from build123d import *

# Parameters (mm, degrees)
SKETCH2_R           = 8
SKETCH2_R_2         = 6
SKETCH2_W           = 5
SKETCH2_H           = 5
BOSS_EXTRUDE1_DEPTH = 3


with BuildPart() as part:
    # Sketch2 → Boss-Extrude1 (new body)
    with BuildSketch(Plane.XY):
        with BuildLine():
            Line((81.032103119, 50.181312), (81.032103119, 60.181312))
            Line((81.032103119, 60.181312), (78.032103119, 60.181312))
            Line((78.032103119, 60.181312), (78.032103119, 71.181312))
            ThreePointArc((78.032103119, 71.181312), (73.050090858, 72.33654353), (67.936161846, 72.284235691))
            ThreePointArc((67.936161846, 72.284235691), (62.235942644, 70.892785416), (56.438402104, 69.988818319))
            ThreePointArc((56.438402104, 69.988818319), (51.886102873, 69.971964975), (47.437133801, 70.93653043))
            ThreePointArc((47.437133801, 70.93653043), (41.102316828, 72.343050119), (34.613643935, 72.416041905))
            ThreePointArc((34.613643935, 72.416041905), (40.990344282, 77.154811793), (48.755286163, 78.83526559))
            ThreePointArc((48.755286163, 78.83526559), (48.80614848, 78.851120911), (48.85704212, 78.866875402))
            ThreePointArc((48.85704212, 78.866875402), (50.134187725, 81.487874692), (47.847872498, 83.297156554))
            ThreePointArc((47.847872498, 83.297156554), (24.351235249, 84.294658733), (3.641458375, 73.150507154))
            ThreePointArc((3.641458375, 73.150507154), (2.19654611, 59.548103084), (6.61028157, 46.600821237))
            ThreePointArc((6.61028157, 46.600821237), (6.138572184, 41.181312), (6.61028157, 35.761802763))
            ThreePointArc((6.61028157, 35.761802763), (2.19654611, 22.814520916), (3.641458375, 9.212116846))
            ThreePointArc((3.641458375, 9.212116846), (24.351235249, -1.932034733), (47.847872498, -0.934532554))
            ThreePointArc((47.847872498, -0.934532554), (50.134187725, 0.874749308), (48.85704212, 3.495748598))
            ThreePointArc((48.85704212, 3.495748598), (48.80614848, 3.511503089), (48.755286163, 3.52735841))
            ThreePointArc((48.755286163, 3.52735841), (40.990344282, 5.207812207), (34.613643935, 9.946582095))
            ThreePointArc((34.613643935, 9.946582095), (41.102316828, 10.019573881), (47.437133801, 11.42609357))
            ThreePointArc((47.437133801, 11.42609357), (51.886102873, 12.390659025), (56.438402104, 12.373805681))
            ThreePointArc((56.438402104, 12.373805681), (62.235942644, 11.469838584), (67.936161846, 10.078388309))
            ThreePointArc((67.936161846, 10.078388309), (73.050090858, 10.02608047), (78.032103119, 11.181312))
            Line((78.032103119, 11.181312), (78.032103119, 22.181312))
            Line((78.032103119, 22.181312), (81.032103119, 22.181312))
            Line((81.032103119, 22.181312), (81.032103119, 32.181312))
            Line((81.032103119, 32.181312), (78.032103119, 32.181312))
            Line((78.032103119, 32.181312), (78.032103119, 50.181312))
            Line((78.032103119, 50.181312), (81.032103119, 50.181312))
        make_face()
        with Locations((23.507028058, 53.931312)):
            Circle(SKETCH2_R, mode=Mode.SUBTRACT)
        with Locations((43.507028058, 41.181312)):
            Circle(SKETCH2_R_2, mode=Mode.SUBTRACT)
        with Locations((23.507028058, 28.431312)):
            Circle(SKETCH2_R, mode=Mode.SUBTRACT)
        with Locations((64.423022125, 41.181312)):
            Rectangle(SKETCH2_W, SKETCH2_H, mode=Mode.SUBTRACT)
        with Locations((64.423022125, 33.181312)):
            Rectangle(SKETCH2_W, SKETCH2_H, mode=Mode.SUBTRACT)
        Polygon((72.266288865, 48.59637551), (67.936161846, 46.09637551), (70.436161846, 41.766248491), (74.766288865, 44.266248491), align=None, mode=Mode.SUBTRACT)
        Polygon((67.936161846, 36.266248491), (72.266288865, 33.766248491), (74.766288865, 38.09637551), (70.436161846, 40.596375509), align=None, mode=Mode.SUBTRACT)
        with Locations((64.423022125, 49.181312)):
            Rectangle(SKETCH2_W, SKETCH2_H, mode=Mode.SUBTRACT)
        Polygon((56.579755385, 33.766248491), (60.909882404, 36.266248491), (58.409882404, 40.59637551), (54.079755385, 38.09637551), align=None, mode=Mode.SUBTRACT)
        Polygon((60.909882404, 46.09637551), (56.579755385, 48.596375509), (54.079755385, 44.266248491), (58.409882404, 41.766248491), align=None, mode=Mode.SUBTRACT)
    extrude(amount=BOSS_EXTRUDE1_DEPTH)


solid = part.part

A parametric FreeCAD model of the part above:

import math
import FreeCAD as App
import Part
import Sketcher
Q = App.Units.Quantity


def add_polygon(sketch, points):
    """Adds a closed chain of lines whose ends are joined by coincident constraints."""
    first, n = sketch.GeometryCount, len(points)
    for a, b in zip(points, points[1:] + points[:1]):
        sketch.addGeometry(Part.LineSegment(App.Vector(*a, 0), App.Vector(*b, 0)), False)
    for i in range(n):
        sketch.addConstraint(Sketcher.Constraint("Coincident", first + i, 2, first + (i + 1) % n, 1))

doc = App.newDocument("Part")
body = doc.addObject("PartDesign::Body", "Body")

sketch1 = doc.addObject("Sketcher::SketchObject", "Sketch")
body.addObject(sketch1)
sketch1.AttachmentSupport = (doc.XY_Plane, [""])
sketch1.MapMode = "FlatFace"
sketch1.addGeometry(Part.LineSegment(App.Vector(81.03, 50.18, 0), App.Vector(81.03, 60.18, 0)), False)
sketch1.addGeometry(Part.LineSegment(App.Vector(81.03, 60.18, 0), App.Vector(78.03, 60.18, 0)), False)
sketch1.addGeometry(Part.LineSegment(App.Vector(78.03, 60.18, 0), App.Vector(78.03, 71.18, 0)), False)
sketch1.addGeometry(Part.ArcOfCircle(Part.Circle(App.Vector(70.71, 50.93, 0), App.Vector(0, 0, 1), 21.53), math.radians(70), math.radians(97)), False)
sketch1.addGeometry(Part.ArcOfCircle(Part.Circle(App.Vector(48.68, 138.81, 0), App.Vector(0, 0, 1), 69.26), math.radians(-83.57), math.radians(-73.85)), False)
sketch1.addGeometry(Part.ArcOfCircle(Part.Circle(App.Vector(54.08, 90.86, 0), App.Vector(0, 0, 1), 21), math.radians(-108), math.radians(-84)), False)
sketch1.addGeometry(Part.ArcOfCircle(Part.Circle(App.Vector(37.51, 41.18, 0), App.Vector(0, 0, 1), 31.37), math.radians(72), math.radians(95)), False)
sketch1.addGeometry(Part.ArcOfCircle(Part.Circle(App.Vector(48.76, 60.04, 0), App.Vector(0, 0, 1), 18.79), math.radians(90), math.radians(139)), False)
sketch1.addGeometry(Part.ArcOfCircle(Part.Circle(App.Vector(56.78, 53.18, 0), App.Vector(0, 0, 1), 26.88), math.radians(107.14), math.radians(107.37)), False)
sketch1.addGeometry(Part.ArcOfCircle(Part.Circle(App.Vector(47.87, 80.97, 0), App.Vector(0, 0, 1), 2.33), math.radians(-65), math.radians(90)), False)
sketch1.addGeometry(Part.ArcOfCircle(Part.Circle(App.Vector(34.28, 41.02, 0), App.Vector(0, 0, 1), 44.4), math.radians(72), math.radians(134)), False)
sketch1.addGeometry(Part.ArcOfCircle(Part.Circle(App.Vector(33.74, 63.08, 0), App.Vector(0, 0, 1), 31.74), math.radians(161), math.radians(211)), False)
sketch1.addGeometry(Part.ArcOfCircle(Part.Circle(App.Vector(37.51, 41.18, 0), App.Vector(0, 0, 1), 31.37), math.radians(170.05), math.radians(189.95)), False)
sketch1.addGeometry(Part.ArcOfCircle(Part.Circle(App.Vector(33.74, 19.29, 0), App.Vector(0, 0, 1), 31.74), math.radians(149), math.radians(199)), False)
sketch1.addGeometry(Part.ArcOfCircle(Part.Circle(App.Vector(34.28, 41.34, 0), App.Vector(0, 0, 1), 44.4), math.radians(-134), math.radians(-72)), False)
sketch1.addGeometry(Part.ArcOfCircle(Part.Circle(App.Vector(47.87, 1.39, 0), App.Vector(0, 0, 1), 2.33), math.radians(-90), math.radians(65)), False)
sketch1.addGeometry(Part.ArcOfCircle(Part.Circle(App.Vector(56.78, 29.18, 0), App.Vector(0, 0, 1), 26.88), math.radians(-107.37), math.radians(-107.14)), False)
sketch1.addGeometry(Part.ArcOfCircle(Part.Circle(App.Vector(48.76, 22.32, 0), App.Vector(0, 0, 1), 18.79), math.radians(-139), math.radians(-90)), False)
sketch1.addGeometry(Part.ArcOfCircle(Part.Circle(App.Vector(37.51, 41.18, 0), App.Vector(0, 0, 1), 31.37), math.radians(-95), math.radians(-72)), False)
sketch1.addGeometry(Part.ArcOfCircle(Part.Circle(App.Vector(54.08, -8.49, 0), App.Vector(0, 0, 1), 21), math.radians(84), math.radians(108)), False)
sketch1.addGeometry(Part.ArcOfCircle(Part.Circle(App.Vector(48.68, -56.45, 0), App.Vector(0, 0, 1), 69.26), math.radians(73.85), math.radians(83.57)), False)
sketch1.addGeometry(Part.ArcOfCircle(Part.Circle(App.Vector(70.71, 31.43, 0), App.Vector(0, 0, 1), 21.53), math.radians(-97), math.radians(-70)), False)
sketch1.addGeometry(Part.LineSegment(App.Vector(78.03, 11.18, 0), App.Vector(78.03, 22.18, 0)), False)
sketch1.addGeometry(Part.LineSegment(App.Vector(78.03, 22.18, 0), App.Vector(81.03, 22.18, 0)), False)
sketch1.addGeometry(Part.LineSegment(App.Vector(81.03, 22.18, 0), App.Vector(81.03, 32.18, 0)), False)
sketch1.addGeometry(Part.LineSegment(App.Vector(81.03, 32.18, 0), App.Vector(78.03, 32.18, 0)), False)
sketch1.addGeometry(Part.LineSegment(App.Vector(78.03, 32.18, 0), App.Vector(78.03, 50.18, 0)), False)
sketch1.addGeometry(Part.LineSegment(App.Vector(78.03, 50.18, 0), App.Vector(81.03, 50.18, 0)), False)
sketch1.addGeometry(Part.Circle(App.Vector(23.51, 28.43, 0), App.Vector(0, 0, 1), 8), False)
add_polygon(sketch1, [(60.91, 36.27), (56.58, 33.77), (54.08, 38.1), (58.41, 40.6)])
add_polygon(sketch1, [(66.92, 30.68), (61.92, 30.68), (61.92, 35.68), (66.92, 35.68)])
add_polygon(sketch1, [(72.27, 33.77), (67.94, 36.27), (70.44, 40.6), (74.77, 38.1)])
sketch1.addGeometry(Part.Circle(App.Vector(43.51, 41.18, 0), App.Vector(0, 0, 1), 6), False)
sketch1.addGeometry(Part.Circle(App.Vector(23.51, 53.93, 0), App.Vector(0, 0, 1), 8), False)
add_polygon(sketch1, [(56.58, 48.6), (60.91, 46.1), (58.41, 41.77), (54.08, 44.27)])
add_polygon(sketch1, [(66.92, 38.68), (61.92, 38.68), (61.92, 43.68), (66.92, 43.68)])
add_polygon(sketch1, [(67.94, 46.1), (72.27, 48.6), (74.77, 44.27), (70.44, 41.77)])
add_polygon(sketch1, [(66.92, 46.68), (61.92, 46.68), (61.92, 51.68), (66.92, 51.68)])
sketch1.addConstraint([
    Sketcher.Constraint("Coincident", 0, 2, 1, 1),
    Sketcher.Constraint("Coincident", 1, 2, 2, 1),
    Sketcher.Constraint("Coincident", 2, 2, 3, 1),
    Sketcher.Constraint("Coincident", 3, 2, 4, 2),
    Sketcher.Constraint("Tangent", 4, 1, 5, 2),
    Sketcher.Constraint("Tangent", 5, 1, 6, 1),
    Sketcher.Constraint("Coincident", 6, 2, 7, 2),
    Sketcher.Constraint("Coincident", 7, 1, 8, 2),
    Sketcher.Constraint("Coincident", 8, 1, 9, 1),
    Sketcher.Constraint("Coincident", 9, 2, 10, 1),
    Sketcher.Constraint("Coincident", 10, 2, 11, 1),
    Sketcher.Constraint("Coincident", 11, 2, 12, 1),
    Sketcher.Constraint("Coincident", 12, 2, 13, 1),
    Sketcher.Constraint("Coincident", 13, 2, 14, 1),
    Sketcher.Constraint("Coincident", 14, 2, 15, 1),
    Sketcher.Constraint("Coincident", 15, 2, 16, 2),
    Sketcher.Constraint("Coincident", 16, 1, 17, 2),
    Sketcher.Constraint("Coincident", 17, 1, 18, 1),
    Sketcher.Constraint("Tangent", 18, 2, 19, 2),
    Sketcher.Constraint("Tangent", 19, 1, 20, 2),
    Sketcher.Constraint("Coincident", 20, 1, 21, 1),
    Sketcher.Constraint("Coincident", 21, 2, 22, 1),
    Sketcher.Constraint("Coincident", 22, 2, 23, 1),
    Sketcher.Constraint("Coincident", 23, 2, 24, 1),
    Sketcher.Constraint("Coincident", 24, 2, 25, 1),
    Sketcher.Constraint("Coincident", 25, 2, 26, 1),
    Sketcher.Constraint("Coincident", 26, 2, 27, 1),
    Sketcher.Constraint("Coincident", 27, 2, 0, 1),
    Sketcher.Constraint("Vertical", 0),
    Sketcher.Constraint("Horizontal", 1),
    Sketcher.Constraint("Vertical", 2),
    Sketcher.Constraint("Vertical", 22),
    Sketcher.Constraint("Horizontal", 23),
    Sketcher.Constraint("Vertical", 24),
    Sketcher.Constraint("Horizontal", 25),
    Sketcher.Constraint("Vertical", 26),
    Sketcher.Constraint("Horizontal", 27),
    Sketcher.Constraint("Horizontal", 33),
    Sketcher.Constraint("Vertical", 34),
    Sketcher.Constraint("Horizontal", 35),
    Sketcher.Constraint("Vertical", 36),
    Sketcher.Constraint("Horizontal", 47),
    Sketcher.Constraint("Vertical", 48),
    Sketcher.Constraint("Horizontal", 49),
    Sketcher.Constraint("Vertical", 50),
    Sketcher.Constraint("Horizontal", 55),
    Sketcher.Constraint("Vertical", 56),
    Sketcher.Constraint("Horizontal", 57),
    Sketcher.Constraint("Vertical", 58),
    Sketcher.Constraint("Coincident", 12, 3, 6, 3),
    Sketcher.Constraint("Coincident", 18, 3, 6, 3),
    Sketcher.Constraint("Equal", 6, 12),
    Sketcher.Constraint("Equal", 11, 13),
    Sketcher.Constraint("Equal", 10, 14),
    Sketcher.Constraint("Equal", 9, 15),
    Sketcher.Constraint("Equal", 8, 16),
    Sketcher.Constraint("Equal", 7, 17),
    Sketcher.Constraint("Equal", 12, 18),
    Sketcher.Constraint("Equal", 5, 19),
    Sketcher.Constraint("Equal", 4, 20),
    Sketcher.Constraint("Equal", 3, 21),
    Sketcher.Constraint("Equal", 28, 42),
    Sketcher.Constraint("Perpendicular", 29, 30),
    Sketcher.Constraint("Perpendicular", 30, 31),
    Sketcher.Constraint("Perpendicular", 31, 32),
    Sketcher.Constraint("Perpendicular", 37, 38),
    Sketcher.Constraint("Perpendicular", 38, 39),
    Sketcher.Constraint("Perpendicular", 39, 40),
    Sketcher.Constraint("Perpendicular", 40, 43),
    Sketcher.Constraint("Perpendicular", 43, 44),
    Sketcher.Constraint("Perpendicular", 44, 45),
    Sketcher.Constraint("Perpendicular", 45, 46),
    Sketcher.Constraint("Perpendicular", 32, 51),
    Sketcher.Constraint("Perpendicular", 51, 52),
    Sketcher.Constraint("Perpendicular", 52, 53),
    Sketcher.Constraint("Perpendicular", 53, 54),
    Sketcher.Constraint("Horizontal", 18, 3, 41, 3),
    Sketcher.Constraint("Horizontal", 32, 2, 37, 2),
    Sketcher.Constraint("Horizontal", 31, 2, 38, 2),
    Sketcher.Constraint("Horizontal", 30, 2, 39, 2),
    Sketcher.Constraint("Horizontal", 46, 2, 51, 2),
    Sketcher.Constraint("Horizontal", 45, 2, 52, 2),
    Sketcher.Constraint("Horizontal", 44, 2, 53, 2),
    Sketcher.Constraint("Vertical", 11, 3, 13, 3),
    Sketcher.Constraint("Vertical", 10, 3, 14, 3),
    Sketcher.Constraint("Vertical", 9, 3, 15, 3),
    Sketcher.Constraint("Vertical", 8, 3, 16, 3),
    Sketcher.Constraint("Vertical", 7, 3, 17, 3),
    Sketcher.Constraint("Vertical", 5, 3, 19, 3),
    Sketcher.Constraint("Vertical", 4, 3, 20, 3),
    Sketcher.Constraint("Vertical", 3, 3, 21, 3),
    Sketcher.Constraint("Vertical", 28, 3, 42, 3),
    Sketcher.Constraint("Vertical", 11, 2, 12, 2),
    Sketcher.Constraint("Vertical", 10, 2, 13, 2),
    Sketcher.Constraint("Vertical", 9, 2, 14, 2),
    Sketcher.Constraint("Vertical", 8, 1, 15, 2),
    Sketcher.Constraint("Vertical", 7, 1, 16, 1),
    Sketcher.Constraint("Vertical", 3, 2, 20, 1),
    Sketcher.Constraint("Vertical", 2, 2, 21, 2),
    Sketcher.Constraint("Vertical", 0, 2, 23, 2),
    Sketcher.Constraint("Vertical", 22, 2, 25, 2),
    Sketcher.Constraint("Vertical", 20, 1, 37, 2),
    Sketcher.Constraint("Vertical", 32, 2, 43, 2),
    Sketcher.Constraint("Vertical", 31, 2, 44, 2),
    Sketcher.Constraint("Vertical", 30, 2, 45, 2),
    Sketcher.Constraint("Vertical", 34, 2, 47, 2),
    Sketcher.Constraint("Vertical", 36, 2, 49, 2),
    Sketcher.Constraint("Vertical", 40, 2, 51, 2),
    Sketcher.Constraint("Vertical", 39, 2, 52, 2),
    Sketcher.Constraint("Vertical", 48, 2, 55, 2),
    Sketcher.Constraint("Vertical", 50, 2, 57, 2),
    Sketcher.Constraint("Equal", 2, 22),
    Sketcher.Constraint("Equal", 0, 24),
    Sketcher.Constraint("Equal", 57, 34),
    Sketcher.Constraint("Equal", 36, 48),
    Sketcher.Constraint("Equal", 50, 56),
    Sketcher.Constraint("Equal", 29, 30),
    Sketcher.Constraint("Diameter", 28, 16.0),
    Sketcher.Constraint("Diameter", 41, 12.0),
    Sketcher.Constraint("Radius", 5, 21.0),
    Sketcher.Constraint("DistanceX", 1, 2, 1, 1, 3.0),
    Sketcher.Constraint("DistanceX", 33, 2, 33, 1, 5.0),
    Sketcher.Constraint("DistanceY", 0, 1, 0, 2, 10.0),
    Sketcher.Constraint("DistanceY", 2, 1, 2, 2, 11.0),
    Sketcher.Constraint("DistanceY", 26, 1, 26, 2, 18.0),
    Sketcher.Constraint("Angle", 29, Q("-150 deg")),
    Sketcher.Constraint("Distance", 29, 5.0),
    Sketcher.Constraint("Radius", 7, 18.792758),
    Sketcher.Constraint("Radius", 8, 26.882739),
    Sketcher.Constraint("Radius", 11, 31.740122),
    Sketcher.Constraint("Radius", 3, 21.531653),
    Sketcher.Constraint("Radius", 4, 69.258564),
    Sketcher.Constraint("Radius", 6, 31.368456),
    Sketcher.Constraint("Radius", 9, 2.325948),
    Sketcher.Constraint("Radius", 10, 44.398334),
    Sketcher.Constraint("DistanceY", -1, 1, 5, 3, 90.856529),
    Sketcher.Constraint("DistanceX", -1, 1, 6, 3, 37.507028),
    Sketcher.Constraint("DistanceX", -1, 1, 7, 3, 48.758021),
    Sketcher.Constraint("DistanceX", -1, 1, 8, 3, 56.781162),
    Sketcher.Constraint("DistanceY", -1, 1, 8, 3, 53.178551),
    Sketcher.Constraint("DistanceX", -1, 1, 11, 3, 33.74007),
    Sketcher.Constraint("DistanceY", -1, 1, 12, 3, 41.181312),
    Sketcher.Constraint("DistanceY", -1, 1, 13, 3, 19.28728),
    Sketcher.Constraint("DistanceY", -1, 1, 14, 3, 41.341041),
    Sketcher.Constraint("DistanceY", -1, 1, 15, 3, 1.391342),
    Sketcher.Constraint("DistanceY", -1, 1, 21, 3, 31.430389),
    Sketcher.Constraint("DistanceX", -1, 1, 28, 3, 23.507028),
    Sketcher.Constraint("DistanceY", -1, 1, 28, 3, 28.431312),
    Sketcher.Constraint("DistanceX", -1, 1, 41, 3, 43.507028),
    Sketcher.Constraint("DistanceY", -1, 1, 42, 3, 53.931312),
    Sketcher.Constraint("DistanceX", -1, 1, 3, 2, 67.936162),
    Sketcher.Constraint("DistanceY", -1, 1, 6, 2, 72.416042),
    Sketcher.Constraint("DistanceX", -1, 1, 10, 2, 3.641458),
    Sketcher.Constraint("DistanceY", -1, 1, 15, 2, 3.495749),
    Sketcher.Constraint("DistanceY", -1, 1, 29, 2, 33.766248),
    Sketcher.Constraint("DistanceY", -1, 1, 33, 2, 30.681312),
    Sketcher.Constraint("DistanceY", -1, 1, 44, 2, 41.766248),
    Sketcher.Constraint("DistanceY", -1, 1, 47, 2, 38.681312),
    Sketcher.Constraint("DistanceY", -1, 1, 55, 2, 46.681312),
    Sketcher.Constraint("DistanceX", -1, 1, 3, 3, 70.711793),
    Sketcher.Constraint("DistanceX", -1, 1, 29, 2, 56.579755),
    Sketcher.Constraint("DistanceX", -1, 1, 33, 2, 61.923022),
])
pad1 = doc.addObject("PartDesign::Pad", "Pad")
body.addObject(pad1)
pad1.Profile = sketch1
pad1.Length = 3

doc.recompute()
